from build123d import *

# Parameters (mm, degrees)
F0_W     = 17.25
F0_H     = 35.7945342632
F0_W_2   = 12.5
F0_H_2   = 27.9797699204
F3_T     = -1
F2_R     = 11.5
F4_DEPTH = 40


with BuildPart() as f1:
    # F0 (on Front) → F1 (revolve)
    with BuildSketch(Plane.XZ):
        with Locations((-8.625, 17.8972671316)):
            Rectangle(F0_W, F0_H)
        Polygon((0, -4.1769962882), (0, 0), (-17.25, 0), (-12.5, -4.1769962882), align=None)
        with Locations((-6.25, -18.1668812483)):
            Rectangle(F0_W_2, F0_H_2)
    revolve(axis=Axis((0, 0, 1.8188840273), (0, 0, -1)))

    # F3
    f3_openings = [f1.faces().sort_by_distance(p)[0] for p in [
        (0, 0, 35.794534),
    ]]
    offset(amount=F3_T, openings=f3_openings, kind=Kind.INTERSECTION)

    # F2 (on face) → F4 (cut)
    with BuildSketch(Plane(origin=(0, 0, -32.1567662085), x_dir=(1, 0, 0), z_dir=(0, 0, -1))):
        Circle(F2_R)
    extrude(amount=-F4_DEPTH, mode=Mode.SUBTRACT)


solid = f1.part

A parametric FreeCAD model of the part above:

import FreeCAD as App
import Part
import Sketcher
from FreeCAD import Vector


def faces_at(feature, points):
    """Names of the faces that lie closest to the given points."""
    faces = feature.Shape.Faces
    near = lambda p: min(range(len(faces)), key=lambda i: faces[i].distToShape(Part.Vertex(*p))[0])
    return sorted({f"Face{near(p) + 1}" for p in points})


def add_polygon(sketch, points):
    """Adds a closed chain of lines whose ends are joined by coincident constraints."""
    first, n = sketch.GeometryCount, len(points)
    for a, b in zip(points, points[1:] + points[:1]):
        sketch.addGeometry(Part.LineSegment(App.Vector(*a, 0), App.Vector(*b, 0)), False)
    for i in range(n):
        sketch.addConstraint(Sketcher.Constraint("Coincident", first + i, 2, first + (i + 1) % n, 1))

doc = App.newDocument("Part")
params = doc.addObject("Spreadsheet::Sheet", "Params")
for row, (alias, value) in enumerate([
    ("sketch1_width", "12.5 mm"),
    ("sketch1_width2", "17.25 mm"),
    ("revolution_angle", "360 deg"),
    ("thickness_wall", "1 mm"),
    ("sketch2_diameter", "23 mm"),
    ("pocket1_length", "40 mm"),
], start=1):
    params.set(f"A{row}", alias)
    params.set(f"B{row}", "=" + value)
    params.setAlias(f"B{row}", alias)

body = doc.addObject("PartDesign::Body", "Body")

sketch1 = body.newObject("Sketcher::SketchObject", "Sketch")
sketch1.AttachmentSupport = (doc.getObject("XZ_Plane"), [""])
sketch1.MapMode = "FlatFace"
add_polygon(sketch1, [(-17, 36), (-17, 0), (-12, -4), (-12, -32), (0, -32), (0, 36)])
sketch1.addConstraint([
    Sketcher.Constraint("Vertical", 0),
    Sketcher.Constraint("Vertical", 2),
    Sketcher.Constraint("Horizontal", 3),
    Sketcher.Constraint("Vertical", 4),
    Sketcher.Constraint("Horizontal", 5),
    Sketcher.Constraint("PointOnObject", 0, 2, -1),
    Sketcher.Constraint("PointOnObject", 3, 2, -2),
    Sketcher.Constraint("DistanceX", 3, 1, 3, 2, 12.5),
    Sketcher.Constraint("DistanceX", 5, 2, 5, 1, 17.25),
    Sketcher.Constraint("DistanceY", 4, 1, 4, 2, 67.9513),
    Sketcher.Constraint("DistanceY", 2, 2, 2, 1, 27.97977),
    Sketcher.Constraint("Distance", 1, 6.32533),
])
sketch1.setExpression("Constraints[13]", "Params.sketch1_width")
sketch1.setExpression("Constraints[14]", "Params.sketch1_width2")
revolution = body.newObject("PartDesign::Revolution", "Revolution")
revolution.Profile = sketch1
revolution.ReferenceAxis = (sketch1, ["V_Axis"])
revolution.setExpression("Angle", "Params.revolution_angle")
doc.recompute()

thickness = body.newObject("PartDesign::Thickness", "Thickness")
thickness.Base = (revolution, faces_at(revolution, [(0, 0, 35.795)]))
thickness.setExpression("Value", "Params.thickness_wall")
thickness.Reversed = True
thickness.Join = "Intersection"

sketch2 = body.newObject("Sketcher::SketchObject", "Sketch001")
sketch2.AttachmentSupport = (doc.getObject("XY_Plane"), [""])
sketch2.MapMode = "FlatFace"
sketch2.AttachmentOffset = App.Placement(Vector(0, 0, -32.156766), App.Rotation())
sketch2.addGeometry(Part.Circle(Vector(0, 0, 0), Vector(0, 0, 1), 12), False)
sketch2.addConstraint([
    Sketcher.Constraint("Coincident", 0, 3, -1, 1),
    Sketcher.Constraint("Diameter", 0, 23.0),
])
sketch2.setExpression("Constraints[1]", "Params.sketch2_diameter")
pocket1 = body.newObject("PartDesign::Pocket", "Pocket")
pocket1.Profile = sketch2
pocket1.setExpression("Length", "Params.pocket1_length")
pocket1.Reversed = True

doc.recompute()
